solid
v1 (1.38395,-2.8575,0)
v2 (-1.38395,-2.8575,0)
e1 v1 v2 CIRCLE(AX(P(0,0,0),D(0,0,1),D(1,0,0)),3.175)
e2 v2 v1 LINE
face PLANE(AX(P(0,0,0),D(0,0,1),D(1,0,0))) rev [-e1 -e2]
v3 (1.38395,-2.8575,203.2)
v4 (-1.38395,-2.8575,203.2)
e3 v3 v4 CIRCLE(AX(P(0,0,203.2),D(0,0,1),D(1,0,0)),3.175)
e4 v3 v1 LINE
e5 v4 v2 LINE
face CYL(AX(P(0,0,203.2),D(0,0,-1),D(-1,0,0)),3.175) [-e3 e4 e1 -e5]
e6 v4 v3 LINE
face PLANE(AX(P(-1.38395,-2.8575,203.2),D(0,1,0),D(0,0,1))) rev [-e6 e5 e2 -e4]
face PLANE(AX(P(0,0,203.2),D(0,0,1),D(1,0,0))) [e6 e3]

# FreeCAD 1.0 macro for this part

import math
import FreeCAD as App
import Part
import Sketcher
Q = App.Units.Quantity

doc = App.newDocument("Part")
body = doc.addObject("PartDesign::Body", "Body")

# Sketch on XY plane
sketch1 = doc.addObject("Sketcher::SketchObject", "Sketch")
body.addObject(sketch1)
sketch1.AttachmentSupport = (doc.XY_Plane, [""])
sketch1.MapMode = "FlatFace"
sketch1.addGeometry([
    Part.LineSegment(App.Vector(-1.38395, -2.8575, 0), App.Vector(1.38395, -2.8575, 0)),
    Part.ArcOfCircle(Part.Circle(App.Vector(0, 0, 0), App.Vector(0, 0, 1), 3.175), math.radians(-64.158067), math.radians(244.158067)),
], False)
sketch1.addConstraint([
    Sketcher.Constraint("Coincident", 0, 1, 1, 2),
    Sketcher.Constraint("Coincident", 1, 1, 0, 2),
    Sketcher.Constraint("Horizontal", 0),
    Sketcher.Constraint("Coincident", 1, 3, -1, 1),
    Sketcher.Constraint("Radius", 1, Q("0.125 in")),
    Sketcher.Constraint("DistanceX", 0, 1, 0, 2, Q("2.767901 mm")),
])
pad1 = doc.addObject("PartDesign::Pad", "Pad")
body.addObject(pad1)
pad1.Profile = sketch1
pad1.Length = Q("8 in")

doc.recompute()
